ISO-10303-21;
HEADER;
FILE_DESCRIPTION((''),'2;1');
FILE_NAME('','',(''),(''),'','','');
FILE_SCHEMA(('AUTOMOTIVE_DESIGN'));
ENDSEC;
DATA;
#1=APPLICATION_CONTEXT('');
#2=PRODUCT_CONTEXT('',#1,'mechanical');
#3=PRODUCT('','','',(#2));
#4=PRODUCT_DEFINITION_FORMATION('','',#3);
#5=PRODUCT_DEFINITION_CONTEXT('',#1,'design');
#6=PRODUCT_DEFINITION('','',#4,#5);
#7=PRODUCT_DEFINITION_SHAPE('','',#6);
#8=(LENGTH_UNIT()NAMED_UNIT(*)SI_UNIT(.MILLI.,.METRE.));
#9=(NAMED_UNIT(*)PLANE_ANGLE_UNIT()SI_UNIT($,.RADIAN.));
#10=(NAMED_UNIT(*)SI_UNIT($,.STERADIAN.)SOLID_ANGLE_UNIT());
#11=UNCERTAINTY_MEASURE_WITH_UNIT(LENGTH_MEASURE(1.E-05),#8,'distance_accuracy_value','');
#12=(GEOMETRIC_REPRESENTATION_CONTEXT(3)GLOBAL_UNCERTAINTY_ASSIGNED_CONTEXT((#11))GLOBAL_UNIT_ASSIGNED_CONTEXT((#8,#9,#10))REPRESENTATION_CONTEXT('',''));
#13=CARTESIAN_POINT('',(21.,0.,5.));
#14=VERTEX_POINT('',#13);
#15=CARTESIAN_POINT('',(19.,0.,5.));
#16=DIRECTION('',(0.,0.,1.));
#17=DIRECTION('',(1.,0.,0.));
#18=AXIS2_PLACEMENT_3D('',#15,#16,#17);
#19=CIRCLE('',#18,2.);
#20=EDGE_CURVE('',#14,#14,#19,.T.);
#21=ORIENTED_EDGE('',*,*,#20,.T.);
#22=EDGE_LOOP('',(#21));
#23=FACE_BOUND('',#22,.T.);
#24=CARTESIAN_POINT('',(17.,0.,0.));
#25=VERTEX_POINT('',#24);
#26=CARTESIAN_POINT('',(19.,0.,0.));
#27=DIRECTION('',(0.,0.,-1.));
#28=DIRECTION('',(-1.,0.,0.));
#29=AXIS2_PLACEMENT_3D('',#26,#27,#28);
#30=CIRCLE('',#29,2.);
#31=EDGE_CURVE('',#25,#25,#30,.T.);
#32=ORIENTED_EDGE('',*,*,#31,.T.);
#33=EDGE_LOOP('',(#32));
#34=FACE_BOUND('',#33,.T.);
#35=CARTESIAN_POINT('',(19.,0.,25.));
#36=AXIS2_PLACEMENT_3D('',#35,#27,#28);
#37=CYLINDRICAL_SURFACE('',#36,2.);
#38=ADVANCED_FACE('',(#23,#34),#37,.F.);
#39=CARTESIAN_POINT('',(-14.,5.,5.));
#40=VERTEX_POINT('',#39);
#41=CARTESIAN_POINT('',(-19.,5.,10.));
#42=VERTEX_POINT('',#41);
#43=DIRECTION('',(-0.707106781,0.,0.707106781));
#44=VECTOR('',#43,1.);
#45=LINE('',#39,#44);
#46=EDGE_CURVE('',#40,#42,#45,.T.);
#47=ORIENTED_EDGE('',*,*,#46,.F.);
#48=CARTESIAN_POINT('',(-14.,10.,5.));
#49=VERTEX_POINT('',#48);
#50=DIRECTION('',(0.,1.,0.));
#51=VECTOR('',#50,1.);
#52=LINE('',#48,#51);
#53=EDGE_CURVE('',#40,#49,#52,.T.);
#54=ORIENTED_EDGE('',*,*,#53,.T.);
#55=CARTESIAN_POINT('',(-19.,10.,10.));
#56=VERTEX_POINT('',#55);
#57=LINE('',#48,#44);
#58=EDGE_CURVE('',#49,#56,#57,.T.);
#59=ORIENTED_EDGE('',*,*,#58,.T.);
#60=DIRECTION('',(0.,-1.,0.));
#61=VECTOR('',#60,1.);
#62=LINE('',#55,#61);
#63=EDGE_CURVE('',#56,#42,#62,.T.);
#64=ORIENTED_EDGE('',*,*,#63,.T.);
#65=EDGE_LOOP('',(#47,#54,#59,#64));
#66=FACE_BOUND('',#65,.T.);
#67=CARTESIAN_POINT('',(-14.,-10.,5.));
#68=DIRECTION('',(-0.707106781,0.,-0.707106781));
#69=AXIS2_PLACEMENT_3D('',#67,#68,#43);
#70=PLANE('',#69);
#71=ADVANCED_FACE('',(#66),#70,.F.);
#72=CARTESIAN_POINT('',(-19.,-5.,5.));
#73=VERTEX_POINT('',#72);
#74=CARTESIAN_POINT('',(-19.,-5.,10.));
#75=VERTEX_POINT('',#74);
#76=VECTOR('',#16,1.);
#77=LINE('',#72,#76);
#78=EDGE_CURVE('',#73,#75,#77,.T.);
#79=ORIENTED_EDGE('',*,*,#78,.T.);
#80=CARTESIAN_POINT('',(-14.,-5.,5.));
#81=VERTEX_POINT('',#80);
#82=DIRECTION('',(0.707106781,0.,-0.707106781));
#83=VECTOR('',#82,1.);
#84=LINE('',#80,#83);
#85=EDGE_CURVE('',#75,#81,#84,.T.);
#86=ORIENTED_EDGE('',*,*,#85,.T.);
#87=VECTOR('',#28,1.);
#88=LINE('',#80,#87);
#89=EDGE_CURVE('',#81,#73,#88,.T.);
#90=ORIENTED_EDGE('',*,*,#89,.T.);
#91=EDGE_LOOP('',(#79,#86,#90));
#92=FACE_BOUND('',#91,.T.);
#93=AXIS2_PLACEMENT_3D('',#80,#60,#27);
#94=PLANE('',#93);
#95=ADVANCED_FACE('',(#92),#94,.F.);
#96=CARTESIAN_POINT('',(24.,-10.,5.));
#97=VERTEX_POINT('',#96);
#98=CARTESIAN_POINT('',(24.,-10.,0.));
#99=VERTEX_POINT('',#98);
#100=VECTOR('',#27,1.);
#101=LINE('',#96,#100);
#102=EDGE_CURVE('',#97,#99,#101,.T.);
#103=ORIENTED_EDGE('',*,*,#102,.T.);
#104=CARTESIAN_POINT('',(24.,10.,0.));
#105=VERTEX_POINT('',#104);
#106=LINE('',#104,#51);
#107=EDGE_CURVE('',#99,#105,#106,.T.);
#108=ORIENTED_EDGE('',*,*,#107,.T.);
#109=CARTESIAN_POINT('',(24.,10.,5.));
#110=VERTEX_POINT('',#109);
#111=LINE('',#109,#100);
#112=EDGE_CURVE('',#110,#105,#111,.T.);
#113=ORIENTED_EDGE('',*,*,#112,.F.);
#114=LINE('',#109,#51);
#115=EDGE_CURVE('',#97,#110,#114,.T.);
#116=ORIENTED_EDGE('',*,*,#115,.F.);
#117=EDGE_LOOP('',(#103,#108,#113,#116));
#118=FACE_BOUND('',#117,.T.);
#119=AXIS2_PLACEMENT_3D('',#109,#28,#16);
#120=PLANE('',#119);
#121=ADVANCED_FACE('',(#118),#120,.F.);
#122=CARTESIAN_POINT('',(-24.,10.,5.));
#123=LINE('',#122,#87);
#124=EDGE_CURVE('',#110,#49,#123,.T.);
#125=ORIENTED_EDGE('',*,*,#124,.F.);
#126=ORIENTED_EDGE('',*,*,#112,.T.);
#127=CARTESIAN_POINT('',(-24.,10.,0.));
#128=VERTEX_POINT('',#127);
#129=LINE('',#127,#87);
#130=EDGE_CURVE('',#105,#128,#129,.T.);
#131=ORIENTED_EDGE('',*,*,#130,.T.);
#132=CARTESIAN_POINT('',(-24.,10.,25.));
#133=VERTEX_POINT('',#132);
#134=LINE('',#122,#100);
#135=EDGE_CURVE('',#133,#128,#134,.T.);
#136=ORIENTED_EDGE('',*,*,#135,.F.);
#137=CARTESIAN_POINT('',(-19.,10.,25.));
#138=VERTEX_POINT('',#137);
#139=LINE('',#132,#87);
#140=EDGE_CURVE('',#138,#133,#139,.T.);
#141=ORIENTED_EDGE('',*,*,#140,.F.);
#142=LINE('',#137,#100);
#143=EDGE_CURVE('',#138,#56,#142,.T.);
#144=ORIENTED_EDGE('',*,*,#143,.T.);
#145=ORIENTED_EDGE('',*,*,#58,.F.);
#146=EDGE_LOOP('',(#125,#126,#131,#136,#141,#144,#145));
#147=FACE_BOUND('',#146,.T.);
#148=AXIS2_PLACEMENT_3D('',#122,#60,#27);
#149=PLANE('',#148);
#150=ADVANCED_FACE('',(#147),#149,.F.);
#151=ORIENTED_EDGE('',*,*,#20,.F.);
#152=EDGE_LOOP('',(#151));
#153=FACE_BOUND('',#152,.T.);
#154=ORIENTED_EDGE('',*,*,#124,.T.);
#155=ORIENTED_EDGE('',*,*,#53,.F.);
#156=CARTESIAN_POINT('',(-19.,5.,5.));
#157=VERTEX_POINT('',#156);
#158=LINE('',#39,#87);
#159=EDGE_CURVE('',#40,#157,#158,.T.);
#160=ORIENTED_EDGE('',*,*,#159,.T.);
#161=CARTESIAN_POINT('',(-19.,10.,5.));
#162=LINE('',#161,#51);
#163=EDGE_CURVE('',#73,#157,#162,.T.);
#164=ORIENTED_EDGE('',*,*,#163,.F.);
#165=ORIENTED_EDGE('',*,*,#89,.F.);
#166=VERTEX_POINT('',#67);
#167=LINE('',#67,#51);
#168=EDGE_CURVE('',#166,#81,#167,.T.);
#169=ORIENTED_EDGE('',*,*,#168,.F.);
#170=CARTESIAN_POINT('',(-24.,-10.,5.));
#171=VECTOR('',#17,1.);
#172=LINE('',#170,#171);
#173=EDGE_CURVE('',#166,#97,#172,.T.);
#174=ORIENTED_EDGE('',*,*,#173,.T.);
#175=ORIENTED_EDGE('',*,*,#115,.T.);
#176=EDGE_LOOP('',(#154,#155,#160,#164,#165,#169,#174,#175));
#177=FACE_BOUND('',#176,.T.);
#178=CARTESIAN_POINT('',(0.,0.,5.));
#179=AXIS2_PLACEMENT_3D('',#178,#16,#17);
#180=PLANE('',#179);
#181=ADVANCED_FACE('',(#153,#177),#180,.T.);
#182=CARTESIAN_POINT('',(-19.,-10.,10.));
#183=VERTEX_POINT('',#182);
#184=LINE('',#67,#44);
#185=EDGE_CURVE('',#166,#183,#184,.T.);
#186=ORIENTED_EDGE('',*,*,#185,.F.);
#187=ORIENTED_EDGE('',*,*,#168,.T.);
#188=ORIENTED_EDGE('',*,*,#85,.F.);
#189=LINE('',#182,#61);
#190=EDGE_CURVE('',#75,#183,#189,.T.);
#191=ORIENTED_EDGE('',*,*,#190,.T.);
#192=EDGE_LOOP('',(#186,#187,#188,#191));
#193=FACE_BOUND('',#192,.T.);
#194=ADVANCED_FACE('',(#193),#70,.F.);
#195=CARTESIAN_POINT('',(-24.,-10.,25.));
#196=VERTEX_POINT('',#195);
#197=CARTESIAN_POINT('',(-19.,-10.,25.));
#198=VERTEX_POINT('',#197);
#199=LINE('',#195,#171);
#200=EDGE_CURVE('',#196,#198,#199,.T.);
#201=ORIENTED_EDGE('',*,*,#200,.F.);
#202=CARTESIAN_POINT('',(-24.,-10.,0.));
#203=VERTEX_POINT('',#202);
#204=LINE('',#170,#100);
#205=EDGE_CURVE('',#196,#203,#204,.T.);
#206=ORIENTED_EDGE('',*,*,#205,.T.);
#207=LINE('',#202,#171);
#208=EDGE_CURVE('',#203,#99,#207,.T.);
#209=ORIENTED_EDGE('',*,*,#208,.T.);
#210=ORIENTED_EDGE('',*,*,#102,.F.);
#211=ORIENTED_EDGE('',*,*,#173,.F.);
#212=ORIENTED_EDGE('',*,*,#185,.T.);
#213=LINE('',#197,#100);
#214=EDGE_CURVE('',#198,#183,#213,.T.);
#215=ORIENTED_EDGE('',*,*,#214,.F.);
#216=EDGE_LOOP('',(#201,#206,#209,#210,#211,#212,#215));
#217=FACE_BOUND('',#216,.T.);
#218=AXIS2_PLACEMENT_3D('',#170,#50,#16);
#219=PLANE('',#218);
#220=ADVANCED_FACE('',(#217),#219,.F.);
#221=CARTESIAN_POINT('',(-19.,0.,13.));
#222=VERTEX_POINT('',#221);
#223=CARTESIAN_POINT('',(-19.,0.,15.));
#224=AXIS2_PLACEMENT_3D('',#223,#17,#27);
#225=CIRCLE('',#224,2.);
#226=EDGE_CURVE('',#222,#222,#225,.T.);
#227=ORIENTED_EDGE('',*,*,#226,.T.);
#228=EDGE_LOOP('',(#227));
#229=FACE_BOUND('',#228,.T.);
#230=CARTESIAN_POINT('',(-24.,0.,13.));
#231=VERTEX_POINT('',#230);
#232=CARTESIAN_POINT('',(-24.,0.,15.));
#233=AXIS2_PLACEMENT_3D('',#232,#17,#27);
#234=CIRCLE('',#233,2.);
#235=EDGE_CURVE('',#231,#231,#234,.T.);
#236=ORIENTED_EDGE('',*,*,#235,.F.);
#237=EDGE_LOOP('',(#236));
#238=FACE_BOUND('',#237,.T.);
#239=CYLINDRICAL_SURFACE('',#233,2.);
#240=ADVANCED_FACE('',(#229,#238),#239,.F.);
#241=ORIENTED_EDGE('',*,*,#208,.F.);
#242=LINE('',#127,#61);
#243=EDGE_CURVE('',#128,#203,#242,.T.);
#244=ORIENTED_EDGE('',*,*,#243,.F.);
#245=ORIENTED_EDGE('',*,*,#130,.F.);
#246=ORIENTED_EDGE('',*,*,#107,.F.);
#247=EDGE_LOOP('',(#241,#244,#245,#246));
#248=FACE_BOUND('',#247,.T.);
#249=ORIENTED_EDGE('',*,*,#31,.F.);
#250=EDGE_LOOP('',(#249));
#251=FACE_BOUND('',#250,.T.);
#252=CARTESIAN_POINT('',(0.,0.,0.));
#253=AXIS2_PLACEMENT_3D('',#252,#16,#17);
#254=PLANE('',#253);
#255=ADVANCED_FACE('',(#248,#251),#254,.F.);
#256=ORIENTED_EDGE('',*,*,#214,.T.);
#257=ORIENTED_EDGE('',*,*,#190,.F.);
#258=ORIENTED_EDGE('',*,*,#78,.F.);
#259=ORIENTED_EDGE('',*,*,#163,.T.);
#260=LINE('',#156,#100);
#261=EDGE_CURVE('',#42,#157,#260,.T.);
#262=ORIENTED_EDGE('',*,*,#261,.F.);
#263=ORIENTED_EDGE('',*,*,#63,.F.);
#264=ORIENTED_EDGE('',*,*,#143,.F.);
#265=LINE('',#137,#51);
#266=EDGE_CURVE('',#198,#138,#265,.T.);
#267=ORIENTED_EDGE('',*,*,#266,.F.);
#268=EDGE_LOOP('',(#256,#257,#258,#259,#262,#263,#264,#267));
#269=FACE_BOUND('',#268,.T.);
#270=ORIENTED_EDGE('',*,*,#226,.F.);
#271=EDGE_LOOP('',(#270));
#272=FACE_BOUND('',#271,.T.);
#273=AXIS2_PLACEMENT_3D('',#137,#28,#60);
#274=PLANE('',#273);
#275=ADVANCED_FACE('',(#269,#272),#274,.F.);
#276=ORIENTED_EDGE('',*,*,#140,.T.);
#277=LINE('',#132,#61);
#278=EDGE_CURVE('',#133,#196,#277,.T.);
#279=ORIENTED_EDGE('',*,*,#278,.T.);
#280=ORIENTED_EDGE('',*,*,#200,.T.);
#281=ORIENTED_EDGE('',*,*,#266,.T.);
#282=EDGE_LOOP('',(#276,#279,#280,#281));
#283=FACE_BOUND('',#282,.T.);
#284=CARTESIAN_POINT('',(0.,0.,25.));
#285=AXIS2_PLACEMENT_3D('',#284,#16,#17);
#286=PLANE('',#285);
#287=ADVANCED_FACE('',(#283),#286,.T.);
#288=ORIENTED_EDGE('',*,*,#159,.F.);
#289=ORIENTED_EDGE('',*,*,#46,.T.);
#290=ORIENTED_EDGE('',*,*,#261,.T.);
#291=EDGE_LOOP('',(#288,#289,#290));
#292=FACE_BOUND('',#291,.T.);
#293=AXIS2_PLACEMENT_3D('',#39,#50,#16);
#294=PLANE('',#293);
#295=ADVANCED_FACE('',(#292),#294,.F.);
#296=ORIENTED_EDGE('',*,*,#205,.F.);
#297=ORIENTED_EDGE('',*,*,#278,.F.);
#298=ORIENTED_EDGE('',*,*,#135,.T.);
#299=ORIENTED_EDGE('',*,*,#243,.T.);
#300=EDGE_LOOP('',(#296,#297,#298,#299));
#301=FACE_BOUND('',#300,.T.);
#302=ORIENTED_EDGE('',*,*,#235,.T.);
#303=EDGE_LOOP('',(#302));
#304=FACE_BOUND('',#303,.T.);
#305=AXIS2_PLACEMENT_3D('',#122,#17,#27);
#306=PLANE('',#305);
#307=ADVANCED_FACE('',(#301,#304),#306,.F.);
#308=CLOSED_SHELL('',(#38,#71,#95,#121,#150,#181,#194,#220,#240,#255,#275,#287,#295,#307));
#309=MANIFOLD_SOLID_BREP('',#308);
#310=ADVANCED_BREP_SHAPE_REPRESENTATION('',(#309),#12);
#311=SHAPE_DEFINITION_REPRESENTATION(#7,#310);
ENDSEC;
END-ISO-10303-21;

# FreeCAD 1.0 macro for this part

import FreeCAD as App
import Part
import Sketcher
from FreeCAD import Vector
Q = App.Units.Quantity


def add_polygon(sketch, points):
    """Adds a closed chain of lines whose ends are joined by coincident constraints."""
    first, n = sketch.GeometryCount, len(points)
    for a, b in zip(points, points[1:] + points[:1]):
        sketch.addGeometry(Part.LineSegment(App.Vector(*a, 0), App.Vector(*b, 0)), False)
    for i in range(n):
        sketch.addConstraint(Sketcher.Constraint("Coincident", first + i, 2, first + (i + 1) % n, 1))

doc = App.newDocument("Part")
body = doc.addObject("PartDesign::Body", "Body")

sketch1 = body.newObject("Sketcher::SketchObject", "Sketch")
sketch1.AttachmentSupport = (doc.getObject("XY_Plane"), [""])
sketch1.MapMode = "FlatFace"
add_polygon(sketch1, [(-24, 10), (-24, -10), (24, -10), (24, 10)])
sketch1.addConstraint([
    Sketcher.Constraint("Vertical", 0),
    Sketcher.Constraint("Horizontal", 1),
    Sketcher.Constraint("Vertical", 2),
    Sketcher.Constraint("Horizontal", 3),
    Sketcher.Constraint("Symmetric", 0, 2, 2, 2, -1, 1),
    Sketcher.Constraint("DistanceX", 1, 1, 1, 2, Q("48 mm")),
    Sketcher.Constraint("DistanceY", 0, 2, 0, 1, Q("20 mm")),
])
pad1 = body.newObject("PartDesign::Pad", "Pad")
pad1.Profile = sketch1
pad1.Length = 5

sketch2 = body.newObject("Sketcher::SketchObject", "Sketch001")
sketch2.AttachmentSupport = (doc.getObject("XY_Plane"), [""])
sketch2.MapMode = "FlatFace"
sketch2.AttachmentOffset = App.Placement(Vector(0, 0, 5), App.Rotation())
add_polygon(sketch2, [(-24, 10), (-24, -10), (-19, -10), (-19, 10)])
sketch2.addConstraint([
    Sketcher.Constraint("Vertical", 0),
    Sketcher.Constraint("Horizontal", 1),
    Sketcher.Constraint("Vertical", 2),
    Sketcher.Constraint("Horizontal", 3),
    Sketcher.Constraint("DistanceX", 1, 1, 1, 2, Q("5 mm")),
    Sketcher.Constraint("DistanceY", 0, 2, 0, 1, Q("20 mm")),
    Sketcher.Constraint("DistanceX", 0, 2, -1, 1, Q("24 mm")),
    Sketcher.Constraint("DistanceY", 0, 2, -1, 1, Q("10 mm")),
])
pad2 = body.newObject("PartDesign::Pad", "Pad001")
pad2.Profile = sketch2
pad2.Length = 20

sketch3 = body.newObject("Sketcher::SketchObject", "Sketch002")
sketch3.AttachmentSupport = (doc.getObject("YZ_Plane"), [""])
sketch3.MapMode = "FlatFace"
sketch3.AttachmentOffset = App.Placement(Vector(0, 0, -19), App.Rotation())
sketch3.addGeometry(Part.Circle(Vector(0, 15, 0), Vector(0, 0, 1), 2), False)
sketch3.addConstraint([
    Sketcher.Constraint("PointOnObject", 0, 3, -2),
    Sketcher.Constraint("Diameter", 0, Q("4 mm")),
    Sketcher.Constraint("DistanceY", -1, 1, 0, 3, Q("15 mm")),
])
pocket1 = body.newObject("PartDesign::Pocket", "Pocket")
pocket1.Profile = sketch3
pocket1.Type = "ThroughAll"

sketch4 = body.newObject("Sketcher::SketchObject", "Sketch003")
sketch4.AttachmentSupport = (doc.getObject("YZ_Plane"), [""])
sketch4.MapMode = "FlatFace"
sketch4.AttachmentOffset = App.Placement(Vector(0, 0, -19), App.Rotation())
add_polygon(sketch4, [(-5, 10), (-10, 10), (-10, 5), (-5, 5)])
add_polygon(sketch4, [(10, 10), (5, 10), (5, 5), (10, 5)])
sketch4.addConstraint([
    Sketcher.Constraint("Horizontal", 0),
    Sketcher.Constraint("Vertical", 1),
    Sketcher.Constraint("Horizontal", 2),
    Sketcher.Constraint("Vertical", 3),
    Sketcher.Constraint("Horizontal", 4),
    Sketcher.Constraint("Vertical", 5),
    Sketcher.Constraint("Horizontal", 6),
    Sketcher.Constraint("Vertical", 7),
    Sketcher.Constraint("Symmetric", 3, 2, 4, 2, -2),
    Sketcher.Constraint("Symmetric", 1, 2, 6, 2, -2),
    Sketcher.Constraint("Equal", 6, 1),
    Sketcher.Constraint("DistanceX", 0, 2, 0, 1, Q("5 mm")),
    Sketcher.Constraint("DistanceX", 0, 2, -1, 1, Q("10 mm")),
    Sketcher.Constraint("DistanceY", -1, 1, 0, 2, Q("10 mm")),
])
pad3 = body.newObject("PartDesign::Pad", "Pad002")
pad3.Profile = sketch4
pad3.Length = 5

sketch5 = body.newObject("Sketcher::SketchObject", "Sketch004")
sketch5.AttachmentSupport = (doc.getObject("XZ_Plane"), [""])
sketch5.MapMode = "FlatFace"
sketch5.AttachmentOffset = App.Placement(Vector(0, 0, -10), App.Rotation())
add_polygon(sketch5, [(-14, 5), (-19, 10), (-14, 10)])
sketch5.addConstraint([
    Sketcher.Constraint("Horizontal", 1),
    Sketcher.Constraint("Vertical", 2),
    Sketcher.Constraint("Equal", 1, 2),
    Sketcher.Constraint("DistanceX", 1, 1, 1, 2, Q("5 mm")),
    Sketcher.Constraint("DistanceX", 0, 2, -1, 1, Q("19 mm")),
    Sketcher.Constraint("DistanceY", -1, 1, 0, 2, Q("10 mm")),
])
pocket2 = body.newObject("PartDesign::Pocket", "Pocket001")
pocket2.Profile = sketch5
pocket2.Type = "ThroughAll"
pocket2.Reversed = True

sketch6 = body.newObject("Sketcher::SketchObject", "Sketch005")
sketch6.AttachmentSupport = (doc.getObject("XY_Plane"), [""])
sketch6.MapMode = "FlatFace"
sketch6.addGeometry(Part.Circle(Vector(19, 0, 0), Vector(0, 0, 1), 2), False)
sketch6.addConstraint([
    Sketcher.Constraint("PointOnObject", 0, 3, -1),
    Sketcher.Constraint("Diameter", 0, Q("4 mm")),
    Sketcher.Constraint("DistanceX", -1, 1, 0, 3, Q("19 mm")),
])
pocket3 = body.newObject("PartDesign::Pocket", "Pocket002")
pocket3.Profile = sketch6
pocket3.Type = "ThroughAll"
pocket3.Reversed = True

doc.recompute()
